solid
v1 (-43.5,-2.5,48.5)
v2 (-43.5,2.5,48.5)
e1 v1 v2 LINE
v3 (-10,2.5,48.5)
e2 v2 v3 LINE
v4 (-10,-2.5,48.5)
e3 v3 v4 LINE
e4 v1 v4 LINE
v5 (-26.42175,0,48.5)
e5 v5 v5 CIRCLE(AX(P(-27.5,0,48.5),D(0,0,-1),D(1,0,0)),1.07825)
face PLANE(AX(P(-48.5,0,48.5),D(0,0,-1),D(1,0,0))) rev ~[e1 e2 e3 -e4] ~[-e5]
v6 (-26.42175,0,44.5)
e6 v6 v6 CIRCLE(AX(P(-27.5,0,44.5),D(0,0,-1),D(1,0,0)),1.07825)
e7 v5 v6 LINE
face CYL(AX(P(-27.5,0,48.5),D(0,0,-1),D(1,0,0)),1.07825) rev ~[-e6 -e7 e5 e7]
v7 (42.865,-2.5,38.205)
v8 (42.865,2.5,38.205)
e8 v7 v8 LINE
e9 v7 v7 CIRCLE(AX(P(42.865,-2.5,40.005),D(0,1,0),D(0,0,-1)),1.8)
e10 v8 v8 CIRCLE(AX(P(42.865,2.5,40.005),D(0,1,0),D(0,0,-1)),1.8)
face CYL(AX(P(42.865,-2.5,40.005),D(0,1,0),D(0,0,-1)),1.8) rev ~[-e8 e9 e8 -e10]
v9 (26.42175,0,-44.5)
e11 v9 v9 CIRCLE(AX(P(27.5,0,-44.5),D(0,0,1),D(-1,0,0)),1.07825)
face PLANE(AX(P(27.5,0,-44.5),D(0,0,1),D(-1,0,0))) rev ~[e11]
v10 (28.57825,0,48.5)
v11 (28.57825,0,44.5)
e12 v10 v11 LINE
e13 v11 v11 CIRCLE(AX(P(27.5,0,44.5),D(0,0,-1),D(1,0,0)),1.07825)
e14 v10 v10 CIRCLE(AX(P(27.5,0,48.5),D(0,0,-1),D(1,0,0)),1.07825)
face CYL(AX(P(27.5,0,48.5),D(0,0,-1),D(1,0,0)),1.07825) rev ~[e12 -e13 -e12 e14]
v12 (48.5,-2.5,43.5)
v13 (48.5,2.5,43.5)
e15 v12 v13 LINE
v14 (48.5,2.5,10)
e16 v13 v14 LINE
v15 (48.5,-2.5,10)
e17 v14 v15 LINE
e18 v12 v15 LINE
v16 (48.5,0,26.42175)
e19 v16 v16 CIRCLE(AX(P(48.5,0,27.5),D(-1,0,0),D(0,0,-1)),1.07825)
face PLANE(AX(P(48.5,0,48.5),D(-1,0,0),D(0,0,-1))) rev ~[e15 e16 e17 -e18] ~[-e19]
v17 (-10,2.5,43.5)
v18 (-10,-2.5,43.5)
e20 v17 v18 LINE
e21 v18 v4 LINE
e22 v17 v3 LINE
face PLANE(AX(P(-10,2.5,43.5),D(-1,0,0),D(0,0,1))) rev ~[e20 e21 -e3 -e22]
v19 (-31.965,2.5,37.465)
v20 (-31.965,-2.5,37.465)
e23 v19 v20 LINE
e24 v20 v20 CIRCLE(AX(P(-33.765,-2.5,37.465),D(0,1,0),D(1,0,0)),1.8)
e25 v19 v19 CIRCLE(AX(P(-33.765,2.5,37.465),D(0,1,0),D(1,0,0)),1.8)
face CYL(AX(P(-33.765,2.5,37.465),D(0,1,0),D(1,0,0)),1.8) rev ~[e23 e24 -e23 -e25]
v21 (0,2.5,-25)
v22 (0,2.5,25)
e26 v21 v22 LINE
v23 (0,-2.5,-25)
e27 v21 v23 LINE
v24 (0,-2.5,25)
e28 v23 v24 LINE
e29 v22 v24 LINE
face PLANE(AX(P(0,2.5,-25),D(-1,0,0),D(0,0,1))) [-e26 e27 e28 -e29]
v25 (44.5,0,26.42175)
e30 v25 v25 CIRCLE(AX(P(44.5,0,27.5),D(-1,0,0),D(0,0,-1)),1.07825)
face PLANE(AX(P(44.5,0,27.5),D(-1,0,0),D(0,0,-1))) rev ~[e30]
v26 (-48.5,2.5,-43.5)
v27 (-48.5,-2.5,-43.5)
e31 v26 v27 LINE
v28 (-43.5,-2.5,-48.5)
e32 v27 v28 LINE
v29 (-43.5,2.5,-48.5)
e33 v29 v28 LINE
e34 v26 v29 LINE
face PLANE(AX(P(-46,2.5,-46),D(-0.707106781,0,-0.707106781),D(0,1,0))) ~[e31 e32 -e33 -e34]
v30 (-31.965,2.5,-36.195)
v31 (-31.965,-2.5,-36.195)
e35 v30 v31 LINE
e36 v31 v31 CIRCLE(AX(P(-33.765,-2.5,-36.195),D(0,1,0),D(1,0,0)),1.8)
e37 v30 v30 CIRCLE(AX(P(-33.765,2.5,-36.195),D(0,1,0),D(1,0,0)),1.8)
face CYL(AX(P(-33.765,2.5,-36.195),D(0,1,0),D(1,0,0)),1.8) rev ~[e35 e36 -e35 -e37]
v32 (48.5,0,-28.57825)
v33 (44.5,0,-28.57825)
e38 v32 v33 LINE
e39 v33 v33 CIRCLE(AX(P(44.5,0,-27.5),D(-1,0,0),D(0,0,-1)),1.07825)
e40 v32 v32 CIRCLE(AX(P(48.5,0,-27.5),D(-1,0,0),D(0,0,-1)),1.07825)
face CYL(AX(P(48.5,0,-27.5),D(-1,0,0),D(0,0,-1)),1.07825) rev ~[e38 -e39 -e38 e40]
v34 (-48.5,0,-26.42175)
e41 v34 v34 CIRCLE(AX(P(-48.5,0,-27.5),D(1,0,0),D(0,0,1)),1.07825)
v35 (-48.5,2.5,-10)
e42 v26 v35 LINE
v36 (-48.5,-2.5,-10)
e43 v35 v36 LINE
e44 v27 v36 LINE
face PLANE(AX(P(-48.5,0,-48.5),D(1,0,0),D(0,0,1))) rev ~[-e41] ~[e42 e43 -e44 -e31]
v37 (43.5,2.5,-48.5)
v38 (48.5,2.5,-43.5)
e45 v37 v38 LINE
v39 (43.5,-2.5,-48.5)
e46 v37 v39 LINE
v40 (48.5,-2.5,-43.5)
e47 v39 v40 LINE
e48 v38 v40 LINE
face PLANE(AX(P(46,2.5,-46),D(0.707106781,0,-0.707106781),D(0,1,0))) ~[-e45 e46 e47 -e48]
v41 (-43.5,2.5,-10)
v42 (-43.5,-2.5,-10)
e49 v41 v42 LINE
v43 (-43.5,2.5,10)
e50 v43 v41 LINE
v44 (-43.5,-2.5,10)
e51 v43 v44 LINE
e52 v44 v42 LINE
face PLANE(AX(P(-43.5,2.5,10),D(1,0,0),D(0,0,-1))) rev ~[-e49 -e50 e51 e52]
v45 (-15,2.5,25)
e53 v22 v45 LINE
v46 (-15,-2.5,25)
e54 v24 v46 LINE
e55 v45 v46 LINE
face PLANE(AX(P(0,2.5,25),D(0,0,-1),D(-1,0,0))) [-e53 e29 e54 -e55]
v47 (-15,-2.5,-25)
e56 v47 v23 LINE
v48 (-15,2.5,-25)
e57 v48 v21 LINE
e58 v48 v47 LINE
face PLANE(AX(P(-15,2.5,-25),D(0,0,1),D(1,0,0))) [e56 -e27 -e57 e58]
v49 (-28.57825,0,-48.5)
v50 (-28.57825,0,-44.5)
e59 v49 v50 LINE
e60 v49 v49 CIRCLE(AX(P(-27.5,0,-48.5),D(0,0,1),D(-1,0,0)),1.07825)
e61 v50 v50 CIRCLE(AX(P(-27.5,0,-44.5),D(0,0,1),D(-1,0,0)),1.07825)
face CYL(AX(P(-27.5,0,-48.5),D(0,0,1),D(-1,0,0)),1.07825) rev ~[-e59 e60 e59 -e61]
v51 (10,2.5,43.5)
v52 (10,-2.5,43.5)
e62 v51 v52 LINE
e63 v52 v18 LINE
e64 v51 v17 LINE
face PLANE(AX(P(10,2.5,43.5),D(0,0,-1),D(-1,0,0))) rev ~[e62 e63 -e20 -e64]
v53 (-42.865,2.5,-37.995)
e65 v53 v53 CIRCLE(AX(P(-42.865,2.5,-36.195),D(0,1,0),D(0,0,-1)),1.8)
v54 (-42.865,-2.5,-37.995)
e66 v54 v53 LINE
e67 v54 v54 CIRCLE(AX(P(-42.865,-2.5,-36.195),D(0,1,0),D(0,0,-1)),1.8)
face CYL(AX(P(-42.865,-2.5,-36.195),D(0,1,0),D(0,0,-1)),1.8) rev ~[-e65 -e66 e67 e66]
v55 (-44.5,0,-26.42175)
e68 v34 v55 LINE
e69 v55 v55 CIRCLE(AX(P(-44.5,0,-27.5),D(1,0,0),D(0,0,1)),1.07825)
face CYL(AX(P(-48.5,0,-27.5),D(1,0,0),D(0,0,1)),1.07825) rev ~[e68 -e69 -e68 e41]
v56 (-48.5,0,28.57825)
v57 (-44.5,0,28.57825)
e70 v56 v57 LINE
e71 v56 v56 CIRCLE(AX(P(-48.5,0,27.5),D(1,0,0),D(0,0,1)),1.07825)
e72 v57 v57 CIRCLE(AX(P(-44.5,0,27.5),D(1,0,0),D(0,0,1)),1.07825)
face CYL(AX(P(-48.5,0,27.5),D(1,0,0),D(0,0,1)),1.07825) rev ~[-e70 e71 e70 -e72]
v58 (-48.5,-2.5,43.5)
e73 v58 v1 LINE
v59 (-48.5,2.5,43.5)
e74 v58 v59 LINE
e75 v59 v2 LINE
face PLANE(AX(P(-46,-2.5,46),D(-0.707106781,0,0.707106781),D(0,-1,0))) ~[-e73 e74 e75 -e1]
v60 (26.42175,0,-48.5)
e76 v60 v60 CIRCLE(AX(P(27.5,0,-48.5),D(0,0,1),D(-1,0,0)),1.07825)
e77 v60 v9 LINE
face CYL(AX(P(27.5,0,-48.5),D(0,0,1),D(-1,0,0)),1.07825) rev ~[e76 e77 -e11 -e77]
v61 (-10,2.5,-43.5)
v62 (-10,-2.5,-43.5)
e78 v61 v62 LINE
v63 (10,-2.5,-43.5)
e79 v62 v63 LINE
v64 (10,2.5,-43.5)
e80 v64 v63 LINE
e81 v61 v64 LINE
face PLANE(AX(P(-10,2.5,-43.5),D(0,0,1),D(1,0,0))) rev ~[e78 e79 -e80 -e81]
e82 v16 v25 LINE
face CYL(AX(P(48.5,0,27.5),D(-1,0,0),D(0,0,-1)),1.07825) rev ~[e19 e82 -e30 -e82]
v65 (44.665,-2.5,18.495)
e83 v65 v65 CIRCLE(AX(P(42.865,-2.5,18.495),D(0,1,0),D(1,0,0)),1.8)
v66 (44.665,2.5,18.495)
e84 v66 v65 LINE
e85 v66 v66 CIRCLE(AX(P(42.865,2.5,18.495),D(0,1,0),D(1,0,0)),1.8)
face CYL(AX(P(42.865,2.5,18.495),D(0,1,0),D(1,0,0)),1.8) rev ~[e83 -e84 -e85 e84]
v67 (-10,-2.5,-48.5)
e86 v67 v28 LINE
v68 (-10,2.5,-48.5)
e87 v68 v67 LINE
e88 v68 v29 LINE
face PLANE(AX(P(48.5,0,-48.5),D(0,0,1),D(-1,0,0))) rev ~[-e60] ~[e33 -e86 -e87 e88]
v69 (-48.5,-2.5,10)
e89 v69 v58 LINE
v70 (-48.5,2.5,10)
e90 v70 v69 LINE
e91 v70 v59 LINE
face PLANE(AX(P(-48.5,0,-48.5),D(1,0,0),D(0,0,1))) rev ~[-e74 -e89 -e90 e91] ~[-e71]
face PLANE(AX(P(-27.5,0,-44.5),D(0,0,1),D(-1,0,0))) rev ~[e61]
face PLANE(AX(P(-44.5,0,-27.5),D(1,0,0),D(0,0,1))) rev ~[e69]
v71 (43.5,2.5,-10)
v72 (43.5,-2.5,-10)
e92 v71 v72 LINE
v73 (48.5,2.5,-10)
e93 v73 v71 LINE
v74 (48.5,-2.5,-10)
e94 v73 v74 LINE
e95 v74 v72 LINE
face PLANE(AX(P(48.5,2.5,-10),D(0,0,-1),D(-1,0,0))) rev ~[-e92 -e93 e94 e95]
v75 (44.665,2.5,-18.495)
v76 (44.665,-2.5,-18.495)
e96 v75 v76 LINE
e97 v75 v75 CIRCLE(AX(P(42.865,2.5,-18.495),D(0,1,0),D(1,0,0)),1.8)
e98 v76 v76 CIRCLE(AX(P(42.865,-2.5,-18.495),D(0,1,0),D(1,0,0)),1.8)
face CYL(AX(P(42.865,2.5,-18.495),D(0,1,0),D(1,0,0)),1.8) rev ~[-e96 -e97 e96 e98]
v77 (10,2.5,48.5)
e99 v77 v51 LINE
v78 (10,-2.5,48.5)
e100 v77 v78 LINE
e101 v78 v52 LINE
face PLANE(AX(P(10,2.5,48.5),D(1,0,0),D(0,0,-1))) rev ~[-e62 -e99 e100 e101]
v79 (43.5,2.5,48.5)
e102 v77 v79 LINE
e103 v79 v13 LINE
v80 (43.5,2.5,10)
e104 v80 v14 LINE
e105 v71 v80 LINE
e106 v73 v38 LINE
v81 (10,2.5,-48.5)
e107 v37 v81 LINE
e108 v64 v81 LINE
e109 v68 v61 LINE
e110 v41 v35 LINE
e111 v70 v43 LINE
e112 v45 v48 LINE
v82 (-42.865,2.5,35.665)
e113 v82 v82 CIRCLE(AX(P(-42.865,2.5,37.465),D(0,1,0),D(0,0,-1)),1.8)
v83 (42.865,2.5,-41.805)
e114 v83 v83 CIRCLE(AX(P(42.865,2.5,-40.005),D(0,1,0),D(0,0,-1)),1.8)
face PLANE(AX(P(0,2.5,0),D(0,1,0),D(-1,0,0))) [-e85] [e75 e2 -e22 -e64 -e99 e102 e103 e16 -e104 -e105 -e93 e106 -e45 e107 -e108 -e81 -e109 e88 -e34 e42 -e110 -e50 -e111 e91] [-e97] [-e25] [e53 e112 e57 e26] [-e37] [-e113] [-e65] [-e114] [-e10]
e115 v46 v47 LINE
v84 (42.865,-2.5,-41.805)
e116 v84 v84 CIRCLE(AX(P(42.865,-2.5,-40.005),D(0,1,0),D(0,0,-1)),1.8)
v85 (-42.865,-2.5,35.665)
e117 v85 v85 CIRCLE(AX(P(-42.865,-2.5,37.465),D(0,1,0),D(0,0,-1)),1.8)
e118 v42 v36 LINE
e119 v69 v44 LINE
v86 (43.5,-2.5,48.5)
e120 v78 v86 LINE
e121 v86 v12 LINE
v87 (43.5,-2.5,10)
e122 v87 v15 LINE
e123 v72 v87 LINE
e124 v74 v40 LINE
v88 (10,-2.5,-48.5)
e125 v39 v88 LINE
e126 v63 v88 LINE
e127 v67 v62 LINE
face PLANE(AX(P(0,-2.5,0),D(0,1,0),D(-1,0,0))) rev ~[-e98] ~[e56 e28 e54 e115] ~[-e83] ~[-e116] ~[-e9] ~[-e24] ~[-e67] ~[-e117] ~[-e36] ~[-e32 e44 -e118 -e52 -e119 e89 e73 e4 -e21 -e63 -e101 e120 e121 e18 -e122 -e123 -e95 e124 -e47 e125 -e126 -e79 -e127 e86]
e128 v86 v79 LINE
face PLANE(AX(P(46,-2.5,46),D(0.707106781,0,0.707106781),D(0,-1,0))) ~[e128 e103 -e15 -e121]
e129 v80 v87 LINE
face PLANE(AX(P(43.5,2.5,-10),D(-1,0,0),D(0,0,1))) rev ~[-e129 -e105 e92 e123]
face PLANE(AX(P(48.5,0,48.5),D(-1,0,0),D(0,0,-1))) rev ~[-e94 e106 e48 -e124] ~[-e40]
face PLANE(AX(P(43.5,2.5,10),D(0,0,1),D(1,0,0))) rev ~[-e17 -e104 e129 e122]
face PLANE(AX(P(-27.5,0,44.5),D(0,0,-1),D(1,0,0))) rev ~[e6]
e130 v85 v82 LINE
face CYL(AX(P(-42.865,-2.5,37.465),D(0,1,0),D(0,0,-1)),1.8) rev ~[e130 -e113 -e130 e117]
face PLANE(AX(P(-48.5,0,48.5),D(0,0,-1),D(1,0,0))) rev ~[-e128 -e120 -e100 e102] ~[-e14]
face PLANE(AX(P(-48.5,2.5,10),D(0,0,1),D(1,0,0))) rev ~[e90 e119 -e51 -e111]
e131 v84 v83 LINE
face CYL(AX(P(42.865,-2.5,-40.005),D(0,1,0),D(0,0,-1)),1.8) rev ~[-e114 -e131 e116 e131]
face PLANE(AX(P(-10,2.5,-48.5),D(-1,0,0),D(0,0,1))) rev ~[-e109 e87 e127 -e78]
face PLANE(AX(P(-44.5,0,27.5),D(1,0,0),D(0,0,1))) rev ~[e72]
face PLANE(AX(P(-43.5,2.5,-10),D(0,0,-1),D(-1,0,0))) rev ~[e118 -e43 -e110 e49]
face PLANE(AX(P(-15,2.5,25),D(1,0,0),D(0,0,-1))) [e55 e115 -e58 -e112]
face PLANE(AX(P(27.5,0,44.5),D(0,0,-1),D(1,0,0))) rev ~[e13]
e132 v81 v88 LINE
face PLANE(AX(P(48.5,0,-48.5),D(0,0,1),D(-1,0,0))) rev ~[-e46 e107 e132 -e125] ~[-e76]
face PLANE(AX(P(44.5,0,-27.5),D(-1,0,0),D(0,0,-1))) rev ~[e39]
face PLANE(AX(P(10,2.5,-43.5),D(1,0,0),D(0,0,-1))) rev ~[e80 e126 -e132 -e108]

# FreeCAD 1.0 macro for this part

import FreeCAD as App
import Part
import Sketcher

V = App.Vector
Q = App.Units.Quantity


def edges_at(feature, points):
    """Names of the edges that pass closest to the given points."""
    edges = feature.Shape.Edges
    near = lambda p: min(range(len(edges)), key=lambda i: edges[i].distToShape(Part.Vertex(*p))[0])
    return sorted({f"Edge{near(p) + 1}" for p in points})


def add_polygon(sketch, points):
    """Adds a closed chain of lines whose ends are joined by coincident constraints."""
    first, n = sketch.GeometryCount, len(points)
    for a, b in zip(points, points[1:] + points[:1]):
        sketch.addGeometry(Part.LineSegment(App.Vector(*a, 0), App.Vector(*b, 0)), False)
    for i in range(n):
        sketch.addConstraint(Sketcher.Constraint("Coincident", first + i, 2, first + (i + 1) % n, 1))

doc = App.newDocument("Part")
body = doc.addObject("PartDesign::Body", "Body")

sketch1 = doc.addObject("Sketcher::SketchObject", "Sketch")
body.addObject(sketch1)
sketch1.AttachmentSupport = (doc.XZ_Plane, [""])
sketch1.MapMode = "FlatFace"
add_polygon(sketch1, [(-48, -48), (-48, 48), (48, 48), (48, -48)])
sketch1.addConstraint(Sketcher.Constraint("Vertical", 0))
sketch1.addConstraint(Sketcher.Constraint("Horizontal", 1))
sketch1.addConstraint(Sketcher.Constraint("Vertical", 2))
sketch1.addConstraint(Sketcher.Constraint("Horizontal", 3))
sketch1.addConstraint(Sketcher.Constraint("Symmetric", 0, 2, 2, 2, -1, 1))
sketch1.addConstraint(Sketcher.Constraint("Equal", 3, 0))
sketch1.addConstraint(Sketcher.Constraint("DistanceX", 1, 1, 1, 2, Q("97 mm")))
pad1 = doc.addObject("PartDesign::Pad", "Pad")
body.addObject(pad1)
pad1.Profile = sketch1
pad1.Length = 5
pad1.Midplane = True

sketch2 = doc.addObject("Sketcher::SketchObject", "Sketch001")
body.addObject(sketch2)
sketch2.AttachmentSupport = (doc.XZ_Plane, [""])
sketch2.MapMode = "FlatFace"
sketch2.AttachmentOffset = App.Placement(V(0, 0, 2.5), App.Rotation())
sketch2.addGeometry(Part.Circle(V(-42.9, 37.5, 0), V(0, 0, 1), 1.8), False)
sketch2.addGeometry(Part.Circle(V(42.9, 40, 0), V(0, 0, 1), 1.8), False)
sketch2.addGeometry(Part.Circle(V(-42.9, -36.2, 0), V(0, 0, 1), 1.8), False)
sketch2.addGeometry(Part.Circle(V(42.9, -40, 0), V(0, 0, 1), 1.8), False)
sketch2.addConstraint(Sketcher.Constraint("Equal", 0, 1))
sketch2.addConstraint(Sketcher.Constraint("Equal", 1, 2))
sketch2.addConstraint(Sketcher.Constraint("Equal", 2, 3))
sketch2.addConstraint(Sketcher.Constraint("Symmetric", 1, 3, 3, 3, -1))
sketch2.addConstraint(Sketcher.Constraint("Vertical", 0, 3, 2, 3))
sketch2.addConstraint(Sketcher.Constraint("Diameter", 0, Q("3.6 mm")))
sketch2.addConstraint(Sketcher.Constraint("DistanceY", 2, 3, 1, 3, Q("76.2 mm")))
sketch2.addConstraint(Sketcher.Constraint("DistanceX", 0, 3, 1, 3, Q("85.73 mm")))
sketch2.addConstraint(Sketcher.Constraint("DistanceY", 0, 3, 1, 3, Q("2.54 mm")))
sketch2.addConstraint(Sketcher.Constraint("DistanceY", 3, 3, 1, 3, Q("80.01 mm")))
sketch2.addConstraint(Sketcher.Constraint("DistanceX", 0, 3, -1, 1, Q("42.865 mm")))
doc.recompute()
hole = doc.addObject("PartDesign::Hole", "Hole")
body.addObject(hole)
hole.Profile = sketch2
hole.ThreadType = "None"
hole.Diameter = 3.6
hole.DepthType = "ThroughAll"
doc.recompute()

chamfer = doc.addObject("PartDesign::Chamfer", "Chamfer")
body.addObject(chamfer)
chamfer.Base = (hole, edges_at(hole, [
    (48.5, 0, -48.5),
    (-48.5, 0, -48.5),
    (48.5, 0, 48.5),
    (-48.5, 0, 48.5),
]))
chamfer.Size = 5

sketch3 = doc.addObject("Sketcher::SketchObject", "Sketch002")
body.addObject(sketch3)
sketch3.AttachmentSupport = (doc.YZ_Plane, [""])
sketch3.MapMode = "FlatFace"
sketch3.AttachmentOffset = App.Placement(V(0, 0, 48.5), App.Rotation())
sketch3.addGeometry(Part.Circle(V(0, -27.5, 0), V(0, 0, 1), 1.1), False)
sketch3.addGeometry(Part.Circle(V(0, 27.5, 0), V(0, 0, 1), 1.1), False)
sketch3.addConstraint(Sketcher.Constraint("Equal", 0, 1))
sketch3.addConstraint(Sketcher.Constraint("Symmetric", 0, 3, 1, 3, -1, 1))
sketch3.addConstraint(Sketcher.Constraint("PointOnObject", 0, 3, -2))
sketch3.addConstraint(Sketcher.Constraint("DistanceY", 0, 3, 1, 3, Q("55 mm")))
sketch3.addConstraint(Sketcher.Constraint("Diameter", 0, Q("2.1565 mm")))
doc.recompute()
hole2 = doc.addObject("PartDesign::Hole", "Hole001")
body.addObject(hole2)
hole2.Profile = sketch3
hole2.ThreadType = "None"
hole2.Diameter = 2.1565
hole2.DepthType = "Dimension"
hole2.Depth = 4
hole2.DrillPoint = "Flat"
doc.recompute()

polarpattern = doc.addObject("PartDesign::PolarPattern", "PolarPattern")
body.addObject(polarpattern)
polarpattern.Originals = [hole2]
polarpattern.Axis = (doc.Y_Axis, [""])
polarpattern.Angle = 360
polarpattern.Occurrences = 4
body.Tip = polarpattern

sketch4 = doc.addObject("Sketcher::SketchObject", "Sketch003")
body.addObject(sketch4)
sketch4.AttachmentSupport = (doc.XZ_Plane, [""])
sketch4.MapMode = "FlatFace"
sketch4.AttachmentOffset = App.Placement(V(0, 0, -2.5), App.Rotation())
add_polygon(sketch4, [(0, -25), (-15, -25), (-15, 25), (0, 25)])
sketch4.addConstraint(Sketcher.Constraint("Horizontal", 0))
sketch4.addConstraint(Sketcher.Constraint("Vertical", 1))
sketch4.addConstraint(Sketcher.Constraint("Horizontal", 2))
sketch4.addConstraint(Sketcher.Constraint("Vertical", 3))
sketch4.addConstraint(Sketcher.Constraint("Symmetric", 2, 2, 3, 2, -1, 1))
sketch4.addConstraint(Sketcher.Constraint("DistanceX", 0, 2, 0, 1, Q("15 mm")))
sketch4.addConstraint(Sketcher.Constraint("DistanceY", 1, 1, 1, 2, Q("50 mm")))
pocket1 = doc.addObject("PartDesign::Pocket", "Pocket")
body.addObject(pocket1)
pocket1.Profile = sketch4
pocket1.Type = "ThroughAll"
pocket1.Reversed = True

sketch5 = doc.addObject("Sketcher::SketchObject", "Sketch004")
body.addObject(sketch5)
sketch5.AttachmentSupport = (doc.XZ_Plane, [""])
sketch5.MapMode = "FlatFace"
sketch5.AttachmentOffset = App.Placement(V(0, 0, -2.5), App.Rotation())
add_polygon(sketch5, [(-44, -10), (-48, -10), (-48, 10), (-44, 10)])
sketch5.addConstraint(Sketcher.Constraint("Horizontal", 0))
sketch5.addConstraint(Sketcher.Constraint("Vertical", 1))
sketch5.addConstraint(Sketcher.Constraint("Horizontal", 2))
sketch5.addConstraint(Sketcher.Constraint("Vertical", 3))
sketch5.addConstraint(Sketcher.Constraint("DistanceX", 0, 2, 0, 1, Q("5 mm")))
sketch5.addConstraint(Sketcher.Constraint("DistanceY", 1, 1, 1, 2, Q("20 mm")))
sketch5.addConstraint(Sketcher.Constraint("DistanceY", 0, 2, -1, 1, Q("10 mm")))
sketch5.addConstraint(Sketcher.Constraint("DistanceX", 0, 2, -1, 1, Q("48.5 mm")))
pocket2 = doc.addObject("PartDesign::Pocket", "Pocket001")
body.addObject(pocket2)
pocket2.Profile = sketch5
pocket2.Type = "ThroughAll"
pocket2.Reversed = True
doc.recompute()

polarpattern2 = doc.addObject("PartDesign::PolarPattern", "PolarPattern001")
body.addObject(polarpattern2)
polarpattern2.Originals = [pocket2]
polarpattern2.Axis = (doc.Y_Axis, [""])
polarpattern2.Angle = 360
polarpattern2.Occurrences = 4
body.Tip = polarpattern2

sketch6 = doc.addObject("Sketcher::SketchObject", "Sketch005")
body.addObject(sketch6)
sketch6.AttachmentSupport = (doc.XZ_Plane, [""])
sketch6.MapMode = "FlatFace"
sketch6.AttachmentOffset = App.Placement(V(0, 0, -2.5), App.Rotation())
sketch6.addGeometry(Part.Circle(V(42.9, 18.5, 0), V(0, 0, 1), 1.8), False)
sketch6.addGeometry(Part.Circle(V(42.9, -18.5, 0), V(0, 0, 1), 1.8), False)
sketch6.addGeometry(Part.Circle(V(-33.8, 37.5, 0), V(0, 0, 1), 1.8), False)
sketch6.addGeometry(Part.Circle(V(-33.8, -36.2, 0), V(0, 0, 1), 1.8), False)
sketch6.addConstraint(Sketcher.Constraint("Equal", 0, 1))
sketch6.addConstraint(Sketcher.Constraint("Equal", 1, 2))
sketch6.addConstraint(Sketcher.Constraint("Equal", 2, 3))
sketch6.addConstraint(Sketcher.Constraint("Symmetric", 0, 3, 1, 3, -1))
sketch6.addConstraint(Sketcher.Constraint("Vertical", 2, 3, 3, 3))
sketch6.addConstraint(Sketcher.Constraint("Diameter", 0, Q("3.6 mm")))
sketch6.addConstraint(Sketcher.Constraint("DistanceY", 3, 3, 1, 3, Q("17.7 mm")))
sketch6.addConstraint(Sketcher.Constraint("DistanceY", 1, 3, 0, 3, Q("36.99 mm")))
sketch6.addConstraint(Sketcher.Constraint("DistanceX", 2, 3, 0, 3, Q("76.63 mm")))
sketch6.addConstraint(Sketcher.Constraint("DistanceY", 0, 3, 2, 3, Q("18.97 mm")))
sketch6.addConstraint(Sketcher.Constraint("DistanceX", -1, 1, 0, 3, Q("42.865 mm")))
pocket3 = doc.addObject("PartDesign::Pocket", "Pocket002")
body.addObject(pocket3)
pocket3.Profile = sketch6
pocket3.Length = 5
pocket3.Reversed = True

doc.recompute()
